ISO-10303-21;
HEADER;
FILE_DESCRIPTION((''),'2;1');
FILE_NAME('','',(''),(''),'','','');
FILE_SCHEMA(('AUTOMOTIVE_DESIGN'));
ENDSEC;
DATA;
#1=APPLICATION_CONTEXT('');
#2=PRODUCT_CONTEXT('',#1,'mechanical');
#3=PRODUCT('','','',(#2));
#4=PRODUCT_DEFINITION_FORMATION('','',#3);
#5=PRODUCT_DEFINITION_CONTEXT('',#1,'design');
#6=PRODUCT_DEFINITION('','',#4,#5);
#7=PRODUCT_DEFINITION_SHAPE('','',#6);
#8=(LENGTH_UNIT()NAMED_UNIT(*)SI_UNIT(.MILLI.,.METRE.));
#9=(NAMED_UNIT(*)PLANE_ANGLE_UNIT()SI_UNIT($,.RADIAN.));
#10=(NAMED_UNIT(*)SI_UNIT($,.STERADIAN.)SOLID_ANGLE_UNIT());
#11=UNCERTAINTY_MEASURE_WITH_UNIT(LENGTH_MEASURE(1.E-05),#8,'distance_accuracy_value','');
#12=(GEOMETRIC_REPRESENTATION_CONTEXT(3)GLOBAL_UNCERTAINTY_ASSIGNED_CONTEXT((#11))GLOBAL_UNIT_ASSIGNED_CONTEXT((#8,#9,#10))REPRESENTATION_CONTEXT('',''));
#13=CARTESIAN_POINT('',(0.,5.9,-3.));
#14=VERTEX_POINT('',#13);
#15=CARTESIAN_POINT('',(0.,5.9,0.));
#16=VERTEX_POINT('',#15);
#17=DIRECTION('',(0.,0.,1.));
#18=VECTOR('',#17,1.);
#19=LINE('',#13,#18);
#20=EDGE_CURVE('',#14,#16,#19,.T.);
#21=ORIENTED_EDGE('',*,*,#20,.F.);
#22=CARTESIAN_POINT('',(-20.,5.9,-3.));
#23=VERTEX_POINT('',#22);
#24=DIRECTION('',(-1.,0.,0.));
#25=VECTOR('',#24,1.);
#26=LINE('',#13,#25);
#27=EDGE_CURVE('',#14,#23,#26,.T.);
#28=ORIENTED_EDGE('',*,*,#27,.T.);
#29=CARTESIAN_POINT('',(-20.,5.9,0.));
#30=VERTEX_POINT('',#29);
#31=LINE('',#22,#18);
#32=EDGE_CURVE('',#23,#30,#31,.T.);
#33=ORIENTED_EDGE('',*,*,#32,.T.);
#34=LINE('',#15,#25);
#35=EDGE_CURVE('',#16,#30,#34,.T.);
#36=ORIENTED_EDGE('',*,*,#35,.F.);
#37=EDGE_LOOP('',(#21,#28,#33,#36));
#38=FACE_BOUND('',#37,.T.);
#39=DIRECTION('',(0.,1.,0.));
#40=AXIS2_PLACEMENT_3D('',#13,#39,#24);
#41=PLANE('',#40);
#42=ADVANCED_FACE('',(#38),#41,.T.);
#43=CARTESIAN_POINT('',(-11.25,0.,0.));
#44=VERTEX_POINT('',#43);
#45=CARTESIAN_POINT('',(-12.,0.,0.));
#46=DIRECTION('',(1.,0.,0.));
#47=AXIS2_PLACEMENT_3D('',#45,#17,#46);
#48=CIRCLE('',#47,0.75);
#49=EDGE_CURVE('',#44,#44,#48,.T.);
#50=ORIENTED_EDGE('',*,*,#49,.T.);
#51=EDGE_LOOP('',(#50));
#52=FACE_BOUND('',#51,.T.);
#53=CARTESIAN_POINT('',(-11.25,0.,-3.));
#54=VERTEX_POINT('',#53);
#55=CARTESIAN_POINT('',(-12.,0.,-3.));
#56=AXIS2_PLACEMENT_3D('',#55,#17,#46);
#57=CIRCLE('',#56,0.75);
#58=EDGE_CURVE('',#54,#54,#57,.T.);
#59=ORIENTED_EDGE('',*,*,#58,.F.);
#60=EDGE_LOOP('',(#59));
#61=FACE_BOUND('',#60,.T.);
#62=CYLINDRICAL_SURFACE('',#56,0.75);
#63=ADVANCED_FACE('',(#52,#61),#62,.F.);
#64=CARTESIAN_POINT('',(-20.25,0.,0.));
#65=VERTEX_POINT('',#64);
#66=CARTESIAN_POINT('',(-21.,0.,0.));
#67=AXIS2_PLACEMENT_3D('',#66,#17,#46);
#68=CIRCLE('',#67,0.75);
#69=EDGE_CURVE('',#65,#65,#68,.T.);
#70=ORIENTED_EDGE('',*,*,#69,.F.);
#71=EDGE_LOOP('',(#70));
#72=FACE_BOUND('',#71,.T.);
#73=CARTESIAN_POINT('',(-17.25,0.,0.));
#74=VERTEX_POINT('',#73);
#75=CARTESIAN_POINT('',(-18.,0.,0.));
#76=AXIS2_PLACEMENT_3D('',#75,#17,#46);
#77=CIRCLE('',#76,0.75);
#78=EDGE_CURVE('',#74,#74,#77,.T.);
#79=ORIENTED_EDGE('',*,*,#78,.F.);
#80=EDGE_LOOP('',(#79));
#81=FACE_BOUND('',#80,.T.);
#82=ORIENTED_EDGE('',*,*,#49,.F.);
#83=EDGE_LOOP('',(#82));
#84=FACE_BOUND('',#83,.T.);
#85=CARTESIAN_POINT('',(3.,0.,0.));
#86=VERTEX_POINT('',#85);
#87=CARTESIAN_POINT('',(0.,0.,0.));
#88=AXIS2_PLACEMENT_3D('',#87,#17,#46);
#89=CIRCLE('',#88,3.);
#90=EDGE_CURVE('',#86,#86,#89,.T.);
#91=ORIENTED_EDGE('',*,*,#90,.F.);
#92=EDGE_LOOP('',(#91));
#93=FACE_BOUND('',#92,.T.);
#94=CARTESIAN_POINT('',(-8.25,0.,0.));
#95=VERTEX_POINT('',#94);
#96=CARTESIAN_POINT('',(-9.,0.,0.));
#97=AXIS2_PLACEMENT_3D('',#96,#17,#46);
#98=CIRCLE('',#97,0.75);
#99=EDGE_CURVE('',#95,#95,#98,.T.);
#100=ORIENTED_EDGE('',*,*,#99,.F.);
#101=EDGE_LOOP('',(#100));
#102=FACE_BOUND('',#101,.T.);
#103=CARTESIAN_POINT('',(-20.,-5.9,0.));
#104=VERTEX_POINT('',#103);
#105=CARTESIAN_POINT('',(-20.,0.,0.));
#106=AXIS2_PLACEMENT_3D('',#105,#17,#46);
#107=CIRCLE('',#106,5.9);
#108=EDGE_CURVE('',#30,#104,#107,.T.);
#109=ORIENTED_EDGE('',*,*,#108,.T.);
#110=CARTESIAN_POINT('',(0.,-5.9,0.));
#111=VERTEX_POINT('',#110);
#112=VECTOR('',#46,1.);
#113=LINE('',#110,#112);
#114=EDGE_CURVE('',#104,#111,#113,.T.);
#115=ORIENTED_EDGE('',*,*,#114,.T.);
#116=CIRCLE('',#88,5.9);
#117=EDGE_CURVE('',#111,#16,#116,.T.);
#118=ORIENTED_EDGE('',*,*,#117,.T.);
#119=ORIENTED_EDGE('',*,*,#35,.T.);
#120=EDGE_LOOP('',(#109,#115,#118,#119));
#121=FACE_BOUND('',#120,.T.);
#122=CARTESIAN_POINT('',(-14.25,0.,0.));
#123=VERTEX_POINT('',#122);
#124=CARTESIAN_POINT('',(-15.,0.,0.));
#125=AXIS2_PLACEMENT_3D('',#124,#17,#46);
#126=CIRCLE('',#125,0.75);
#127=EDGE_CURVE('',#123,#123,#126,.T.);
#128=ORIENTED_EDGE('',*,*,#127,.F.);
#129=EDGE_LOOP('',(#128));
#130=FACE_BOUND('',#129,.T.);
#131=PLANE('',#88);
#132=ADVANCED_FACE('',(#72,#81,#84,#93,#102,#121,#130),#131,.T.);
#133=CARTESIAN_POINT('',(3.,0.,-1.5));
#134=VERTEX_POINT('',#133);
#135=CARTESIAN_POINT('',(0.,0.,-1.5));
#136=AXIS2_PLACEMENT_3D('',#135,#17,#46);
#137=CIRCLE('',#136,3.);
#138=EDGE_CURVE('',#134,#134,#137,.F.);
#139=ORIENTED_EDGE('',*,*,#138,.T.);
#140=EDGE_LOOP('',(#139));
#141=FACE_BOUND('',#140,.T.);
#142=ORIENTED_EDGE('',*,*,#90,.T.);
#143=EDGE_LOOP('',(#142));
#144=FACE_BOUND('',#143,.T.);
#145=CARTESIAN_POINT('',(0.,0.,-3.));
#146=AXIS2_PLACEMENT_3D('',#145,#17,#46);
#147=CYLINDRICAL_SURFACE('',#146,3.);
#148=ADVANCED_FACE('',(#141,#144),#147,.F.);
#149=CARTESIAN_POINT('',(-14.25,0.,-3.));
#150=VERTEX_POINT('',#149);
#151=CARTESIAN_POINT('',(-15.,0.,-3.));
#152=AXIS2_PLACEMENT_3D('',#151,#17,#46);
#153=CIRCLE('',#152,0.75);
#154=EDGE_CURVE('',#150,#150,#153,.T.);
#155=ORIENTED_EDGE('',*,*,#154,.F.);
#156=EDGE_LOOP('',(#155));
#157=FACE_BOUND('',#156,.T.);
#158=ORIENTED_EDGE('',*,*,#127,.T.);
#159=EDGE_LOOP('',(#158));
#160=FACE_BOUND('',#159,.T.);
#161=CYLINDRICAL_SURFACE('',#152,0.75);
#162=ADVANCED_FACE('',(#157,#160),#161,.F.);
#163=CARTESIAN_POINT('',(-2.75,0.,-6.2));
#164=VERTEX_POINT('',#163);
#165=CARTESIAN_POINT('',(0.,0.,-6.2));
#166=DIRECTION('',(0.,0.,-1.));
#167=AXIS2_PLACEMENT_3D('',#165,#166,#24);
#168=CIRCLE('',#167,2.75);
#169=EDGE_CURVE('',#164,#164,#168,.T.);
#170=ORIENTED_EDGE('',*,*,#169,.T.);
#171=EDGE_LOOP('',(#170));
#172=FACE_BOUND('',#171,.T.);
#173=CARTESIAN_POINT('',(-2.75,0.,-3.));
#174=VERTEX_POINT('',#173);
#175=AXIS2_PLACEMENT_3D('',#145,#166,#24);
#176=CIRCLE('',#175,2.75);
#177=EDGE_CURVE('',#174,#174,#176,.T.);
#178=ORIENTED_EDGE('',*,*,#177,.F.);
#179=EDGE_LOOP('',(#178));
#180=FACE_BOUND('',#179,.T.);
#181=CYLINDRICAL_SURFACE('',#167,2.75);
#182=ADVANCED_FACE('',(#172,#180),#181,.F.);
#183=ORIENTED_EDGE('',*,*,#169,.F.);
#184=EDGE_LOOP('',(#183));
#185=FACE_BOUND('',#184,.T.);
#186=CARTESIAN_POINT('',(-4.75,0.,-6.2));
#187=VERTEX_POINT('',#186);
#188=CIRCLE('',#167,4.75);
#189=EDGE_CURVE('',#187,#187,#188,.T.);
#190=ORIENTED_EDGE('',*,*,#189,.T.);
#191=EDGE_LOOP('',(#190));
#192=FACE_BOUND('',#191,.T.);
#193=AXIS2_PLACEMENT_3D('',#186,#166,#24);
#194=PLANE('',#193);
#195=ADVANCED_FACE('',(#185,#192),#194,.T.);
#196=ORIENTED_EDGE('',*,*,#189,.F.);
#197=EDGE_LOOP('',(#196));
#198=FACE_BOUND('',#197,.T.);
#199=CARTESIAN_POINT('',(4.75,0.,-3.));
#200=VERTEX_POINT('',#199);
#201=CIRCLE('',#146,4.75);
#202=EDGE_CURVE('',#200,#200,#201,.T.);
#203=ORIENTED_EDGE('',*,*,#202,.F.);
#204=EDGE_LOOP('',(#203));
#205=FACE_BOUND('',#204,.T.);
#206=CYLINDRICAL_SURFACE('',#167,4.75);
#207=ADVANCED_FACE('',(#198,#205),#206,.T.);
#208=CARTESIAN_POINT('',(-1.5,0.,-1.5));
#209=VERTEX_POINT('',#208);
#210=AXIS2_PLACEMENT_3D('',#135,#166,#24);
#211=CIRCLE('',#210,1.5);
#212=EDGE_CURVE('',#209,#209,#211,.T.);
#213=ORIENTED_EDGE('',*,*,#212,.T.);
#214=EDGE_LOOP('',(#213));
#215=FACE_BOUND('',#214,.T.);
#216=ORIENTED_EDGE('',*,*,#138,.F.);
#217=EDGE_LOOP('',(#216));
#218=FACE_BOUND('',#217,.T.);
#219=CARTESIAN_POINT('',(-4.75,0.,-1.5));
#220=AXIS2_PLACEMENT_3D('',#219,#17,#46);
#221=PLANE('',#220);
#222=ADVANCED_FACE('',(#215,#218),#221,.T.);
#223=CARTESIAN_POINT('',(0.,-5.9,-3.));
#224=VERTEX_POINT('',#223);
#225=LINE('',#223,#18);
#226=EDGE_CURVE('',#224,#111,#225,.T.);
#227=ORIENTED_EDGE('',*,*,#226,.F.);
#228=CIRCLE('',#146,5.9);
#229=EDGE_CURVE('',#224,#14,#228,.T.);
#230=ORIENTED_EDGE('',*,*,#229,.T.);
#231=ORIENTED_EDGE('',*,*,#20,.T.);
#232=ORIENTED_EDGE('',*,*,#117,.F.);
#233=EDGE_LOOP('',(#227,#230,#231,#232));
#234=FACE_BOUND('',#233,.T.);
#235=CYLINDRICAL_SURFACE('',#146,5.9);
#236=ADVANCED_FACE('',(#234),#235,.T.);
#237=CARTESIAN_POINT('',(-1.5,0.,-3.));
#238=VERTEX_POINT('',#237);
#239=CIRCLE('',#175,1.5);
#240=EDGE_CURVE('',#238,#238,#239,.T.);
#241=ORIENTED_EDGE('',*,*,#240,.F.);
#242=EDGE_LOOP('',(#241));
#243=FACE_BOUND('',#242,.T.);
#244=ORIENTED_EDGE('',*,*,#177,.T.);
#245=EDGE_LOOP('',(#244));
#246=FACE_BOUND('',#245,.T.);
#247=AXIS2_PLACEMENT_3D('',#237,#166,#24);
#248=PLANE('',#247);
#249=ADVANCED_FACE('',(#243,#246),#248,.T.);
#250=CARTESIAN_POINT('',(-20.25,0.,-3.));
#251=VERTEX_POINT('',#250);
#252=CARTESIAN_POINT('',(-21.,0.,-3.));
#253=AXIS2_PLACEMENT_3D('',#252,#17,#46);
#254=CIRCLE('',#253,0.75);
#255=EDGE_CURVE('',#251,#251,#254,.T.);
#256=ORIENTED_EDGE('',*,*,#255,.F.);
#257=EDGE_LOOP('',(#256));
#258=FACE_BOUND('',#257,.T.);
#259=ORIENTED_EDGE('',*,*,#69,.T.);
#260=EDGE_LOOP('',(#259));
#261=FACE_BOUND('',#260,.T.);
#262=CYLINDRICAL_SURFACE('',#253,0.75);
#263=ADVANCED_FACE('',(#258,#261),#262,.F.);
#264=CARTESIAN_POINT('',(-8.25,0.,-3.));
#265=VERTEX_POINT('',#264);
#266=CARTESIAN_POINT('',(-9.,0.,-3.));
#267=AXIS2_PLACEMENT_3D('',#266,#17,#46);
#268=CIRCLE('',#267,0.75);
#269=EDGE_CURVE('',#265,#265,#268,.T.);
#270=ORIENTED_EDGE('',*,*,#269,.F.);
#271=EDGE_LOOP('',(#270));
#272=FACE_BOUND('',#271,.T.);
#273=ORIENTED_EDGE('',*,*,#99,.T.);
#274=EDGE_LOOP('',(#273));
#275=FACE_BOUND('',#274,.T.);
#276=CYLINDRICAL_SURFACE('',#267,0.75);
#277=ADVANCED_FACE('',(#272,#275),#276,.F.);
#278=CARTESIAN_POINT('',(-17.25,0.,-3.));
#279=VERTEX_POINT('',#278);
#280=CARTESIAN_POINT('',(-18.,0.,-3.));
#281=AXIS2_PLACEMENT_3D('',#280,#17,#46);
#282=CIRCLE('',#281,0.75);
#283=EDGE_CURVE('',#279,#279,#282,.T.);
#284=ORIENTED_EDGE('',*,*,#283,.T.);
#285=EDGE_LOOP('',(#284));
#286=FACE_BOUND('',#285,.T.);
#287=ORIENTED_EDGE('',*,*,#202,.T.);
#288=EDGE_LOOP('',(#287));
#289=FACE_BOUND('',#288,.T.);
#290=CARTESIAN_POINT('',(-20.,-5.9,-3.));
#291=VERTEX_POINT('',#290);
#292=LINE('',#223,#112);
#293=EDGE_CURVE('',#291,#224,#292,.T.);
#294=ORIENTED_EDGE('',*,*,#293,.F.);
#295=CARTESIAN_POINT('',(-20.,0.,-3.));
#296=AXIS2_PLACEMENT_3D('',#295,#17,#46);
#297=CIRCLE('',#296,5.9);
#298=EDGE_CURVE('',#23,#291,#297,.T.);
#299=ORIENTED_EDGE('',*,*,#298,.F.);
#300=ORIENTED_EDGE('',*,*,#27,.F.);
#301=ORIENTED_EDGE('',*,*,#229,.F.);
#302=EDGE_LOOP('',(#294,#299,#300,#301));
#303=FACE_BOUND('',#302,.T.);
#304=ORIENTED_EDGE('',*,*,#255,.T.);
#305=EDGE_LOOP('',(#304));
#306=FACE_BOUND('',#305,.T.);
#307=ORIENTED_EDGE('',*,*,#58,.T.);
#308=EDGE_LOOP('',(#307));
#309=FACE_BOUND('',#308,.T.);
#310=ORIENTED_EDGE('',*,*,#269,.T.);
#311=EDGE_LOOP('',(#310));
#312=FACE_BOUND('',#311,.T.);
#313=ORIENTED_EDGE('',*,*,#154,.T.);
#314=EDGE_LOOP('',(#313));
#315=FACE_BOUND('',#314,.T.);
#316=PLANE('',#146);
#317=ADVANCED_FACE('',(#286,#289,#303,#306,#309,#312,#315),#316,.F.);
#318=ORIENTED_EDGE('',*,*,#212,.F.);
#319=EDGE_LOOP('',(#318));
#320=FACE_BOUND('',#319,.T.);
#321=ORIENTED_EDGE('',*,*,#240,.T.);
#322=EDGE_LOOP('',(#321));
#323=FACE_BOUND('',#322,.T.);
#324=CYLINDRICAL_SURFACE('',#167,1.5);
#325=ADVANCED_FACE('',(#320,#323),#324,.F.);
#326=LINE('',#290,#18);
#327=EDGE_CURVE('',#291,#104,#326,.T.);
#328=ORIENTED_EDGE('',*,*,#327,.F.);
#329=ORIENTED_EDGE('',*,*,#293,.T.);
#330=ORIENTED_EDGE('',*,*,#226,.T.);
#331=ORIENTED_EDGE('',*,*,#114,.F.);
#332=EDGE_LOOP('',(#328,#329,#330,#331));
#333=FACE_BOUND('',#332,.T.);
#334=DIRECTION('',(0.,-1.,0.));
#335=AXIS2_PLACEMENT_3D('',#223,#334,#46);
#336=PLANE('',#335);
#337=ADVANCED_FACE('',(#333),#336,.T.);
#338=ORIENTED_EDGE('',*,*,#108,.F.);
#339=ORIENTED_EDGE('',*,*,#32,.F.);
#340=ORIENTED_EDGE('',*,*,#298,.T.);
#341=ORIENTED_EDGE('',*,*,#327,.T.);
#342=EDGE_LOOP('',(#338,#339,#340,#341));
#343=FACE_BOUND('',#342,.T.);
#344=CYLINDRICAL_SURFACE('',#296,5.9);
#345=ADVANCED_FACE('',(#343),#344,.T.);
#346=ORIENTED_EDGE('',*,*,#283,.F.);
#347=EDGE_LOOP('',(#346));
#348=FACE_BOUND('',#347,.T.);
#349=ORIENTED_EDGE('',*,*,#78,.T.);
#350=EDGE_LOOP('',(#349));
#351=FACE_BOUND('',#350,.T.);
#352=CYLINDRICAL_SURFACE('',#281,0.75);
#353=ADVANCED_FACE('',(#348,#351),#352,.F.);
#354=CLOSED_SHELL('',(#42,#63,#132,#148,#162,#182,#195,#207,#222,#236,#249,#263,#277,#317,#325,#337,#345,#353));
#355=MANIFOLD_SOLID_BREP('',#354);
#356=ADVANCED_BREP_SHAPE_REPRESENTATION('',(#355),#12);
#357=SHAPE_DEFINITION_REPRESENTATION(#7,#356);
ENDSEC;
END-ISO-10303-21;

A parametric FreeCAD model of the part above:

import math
import FreeCAD as App
import Part
import Sketcher
from FreeCAD import Vector


def add_polygon(sketch, points):
    """Adds a closed chain of lines whose ends are joined by coincident constraints."""
    first, n = sketch.GeometryCount, len(points)
    for a, b in zip(points, points[1:] + points[:1]):
        sketch.addGeometry(Part.LineSegment(App.Vector(*a, 0), App.Vector(*b, 0)), False)
    for i in range(n):
        sketch.addConstraint(Sketcher.Constraint("Coincident", first + i, 2, first + (i + 1) % n, 1))

doc = App.newDocument("Part")
body = doc.addObject("PartDesign::Body", "Body")

# Sketch on XY plane
sketch1 = body.newObject("Sketcher::SketchObject", "Sketch")
sketch1.AttachmentSupport = (doc.getObject("XY_Plane"), [""])
sketch1.MapMode = "FlatFace"
sketch1.addGeometry(Part.LineSegment(Vector(-20, -5.9, 0), Vector(0, -5.9, 0)), False)
sketch1.addGeometry(Part.ArcOfCircle(Part.Circle(Vector(0, 0, 0), Vector(0, 0, 1), 5.9), math.radians(-90), math.radians(90)), False)
sketch1.addGeometry(Part.LineSegment(Vector(0, 5.9, 0), Vector(-20, 5.9, 0)), False)
sketch1.addGeometry(Part.ArcOfCircle(Part.Circle(Vector(-20, 0, 0), Vector(0, 0, 1), 5.9), math.radians(90), math.radians(270)), False)
sketch1.addGeometry(Part.Circle(Vector(0, 0, 0), Vector(0, 0, 1), 3), False)
sketch1.addGeometry(Part.Circle(Vector(-9, 0, 0), Vector(0, 0, 1), 0.8), False)
sketch1.addGeometry(Part.Circle(Vector(-12, 0, 0), Vector(0, 0, 1), 0.8), False)
sketch1.addGeometry(Part.Circle(Vector(-15, 0, 0), Vector(0, 0, 1), 0.8), False)
sketch1.addGeometry(Part.Circle(Vector(-18, 0, 0), Vector(0, 0, 1), 0.8), False)
sketch1.addGeometry(Part.Circle(Vector(-21, 0, 0), Vector(0, 0, 1), 0.8), False)
sketch1.addConstraint(Sketcher.Constraint("Tangent", 0, 2, 1, 1))
sketch1.addConstraint(Sketcher.Constraint("Tangent", 1, 2, 2, 1))
sketch1.addConstraint(Sketcher.Constraint("Tangent", 2, 2, 3, 1))
sketch1.addConstraint(Sketcher.Constraint("Tangent", 3, 2, 0, 1))
sketch1.addConstraint(Sketcher.Constraint("Horizontal", 0))
sketch1.addConstraint(Sketcher.Constraint("Horizontal", 2))
sketch1.addConstraint(Sketcher.Constraint("Coincident", 1, 3, -1, 1))
sketch1.addConstraint(Sketcher.Constraint("Coincident", 4, 3, -1, 1))
sketch1.addConstraint(Sketcher.Constraint("Equal", 5, 6))
sketch1.addConstraint(Sketcher.Constraint("Equal", 6, 7))
sketch1.addConstraint(Sketcher.Constraint("Equal", 7, 8))
sketch1.addConstraint(Sketcher.Constraint("Equal", 8, 9))
sketch1.addConstraint(Sketcher.Constraint("PointOnObject", 5, 3, -1))
sketch1.addConstraint(Sketcher.Constraint("PointOnObject", 6, 3, -1))
sketch1.addConstraint(Sketcher.Constraint("PointOnObject", 7, 3, -1))
sketch1.addConstraint(Sketcher.Constraint("PointOnObject", 8, 3, -1))
sketch1.addConstraint(Sketcher.Constraint("PointOnObject", 9, 3, -1))
sketch1.addConstraint(Sketcher.Constraint("Diameter", 4, 6.0))
sketch1.addConstraint(Sketcher.Constraint("Diameter", 5, 1.5))
sketch1.addConstraint(Sketcher.Constraint("Radius", 1, 5.9))
sketch1.addConstraint(Sketcher.Constraint("DistanceX", 0, 1, 0, 2, 20.0))
sketch1.addConstraint(Sketcher.Constraint("DistanceX", 5, 3, -1, 1, 9.0))
sketch1.addConstraint(Sketcher.Constraint("DistanceX", 6, 3, -1, 1, 12.0))
sketch1.addConstraint(Sketcher.Constraint("DistanceX", 7, 3, -1, 1, 15.0))
sketch1.addConstraint(Sketcher.Constraint("DistanceX", 8, 3, -1, 1, 18.0))
sketch1.addConstraint(Sketcher.Constraint("DistanceX", 9, 3, -1, 1, 21.0))
pad1 = body.newObject("PartDesign::Pad", "Pad")
pad1.Profile = sketch1
pad1.Length = 3
pad1.Reversed = True

# Sketch on XZ plane
sketch2 = body.newObject("Sketcher::SketchObject", "Sketch001")
sketch2.AttachmentSupport = (doc.getObject("XZ_Plane"), [""])
sketch2.MapMode = "FlatFace"
add_polygon(sketch2, [(-2.8, -6.2), (-4.8, -6.2), (-4.8, -1.5), (-1.5, -1.5), (-1.5, -3), (-2.8, -3)])  # lines 0-5
sketch2.addConstraint(Sketcher.Constraint("Horizontal", 0))
sketch2.addConstraint(Sketcher.Constraint("Vertical", 1))
sketch2.addConstraint(Sketcher.Constraint("Horizontal", 2))
sketch2.addConstraint(Sketcher.Constraint("Vertical", 3))
sketch2.addConstraint(Sketcher.Constraint("Horizontal", 4))
sketch2.addConstraint(Sketcher.Constraint("Vertical", 5))
sketch2.addConstraint(Sketcher.Constraint("DistanceX", 0, 2, 0, 1, 2.0))
sketch2.addConstraint(Sketcher.Constraint("DistanceY", 1, 1, 1, 2, 4.7))
sketch2.addConstraint(Sketcher.Constraint("DistanceY", 3, 2, 3, 1, 1.5))
sketch2.addConstraint(Sketcher.Constraint("DistanceY", 3, 2, -1, 1, 3.0))
sketch2.addConstraint(Sketcher.Constraint("DistanceX", 2, 1, 2, 2, 3.25))
sketch2.addConstraint(Sketcher.Constraint("DistanceX", 2, 2, -1, 1, 1.5))
revolution = body.newObject("PartDesign::Revolution", "Revolution")
revolution.Profile = sketch2
revolution.ReferenceAxis = (sketch2, ["V_Axis"])
revolution.Angle = 360

doc.recompute()
